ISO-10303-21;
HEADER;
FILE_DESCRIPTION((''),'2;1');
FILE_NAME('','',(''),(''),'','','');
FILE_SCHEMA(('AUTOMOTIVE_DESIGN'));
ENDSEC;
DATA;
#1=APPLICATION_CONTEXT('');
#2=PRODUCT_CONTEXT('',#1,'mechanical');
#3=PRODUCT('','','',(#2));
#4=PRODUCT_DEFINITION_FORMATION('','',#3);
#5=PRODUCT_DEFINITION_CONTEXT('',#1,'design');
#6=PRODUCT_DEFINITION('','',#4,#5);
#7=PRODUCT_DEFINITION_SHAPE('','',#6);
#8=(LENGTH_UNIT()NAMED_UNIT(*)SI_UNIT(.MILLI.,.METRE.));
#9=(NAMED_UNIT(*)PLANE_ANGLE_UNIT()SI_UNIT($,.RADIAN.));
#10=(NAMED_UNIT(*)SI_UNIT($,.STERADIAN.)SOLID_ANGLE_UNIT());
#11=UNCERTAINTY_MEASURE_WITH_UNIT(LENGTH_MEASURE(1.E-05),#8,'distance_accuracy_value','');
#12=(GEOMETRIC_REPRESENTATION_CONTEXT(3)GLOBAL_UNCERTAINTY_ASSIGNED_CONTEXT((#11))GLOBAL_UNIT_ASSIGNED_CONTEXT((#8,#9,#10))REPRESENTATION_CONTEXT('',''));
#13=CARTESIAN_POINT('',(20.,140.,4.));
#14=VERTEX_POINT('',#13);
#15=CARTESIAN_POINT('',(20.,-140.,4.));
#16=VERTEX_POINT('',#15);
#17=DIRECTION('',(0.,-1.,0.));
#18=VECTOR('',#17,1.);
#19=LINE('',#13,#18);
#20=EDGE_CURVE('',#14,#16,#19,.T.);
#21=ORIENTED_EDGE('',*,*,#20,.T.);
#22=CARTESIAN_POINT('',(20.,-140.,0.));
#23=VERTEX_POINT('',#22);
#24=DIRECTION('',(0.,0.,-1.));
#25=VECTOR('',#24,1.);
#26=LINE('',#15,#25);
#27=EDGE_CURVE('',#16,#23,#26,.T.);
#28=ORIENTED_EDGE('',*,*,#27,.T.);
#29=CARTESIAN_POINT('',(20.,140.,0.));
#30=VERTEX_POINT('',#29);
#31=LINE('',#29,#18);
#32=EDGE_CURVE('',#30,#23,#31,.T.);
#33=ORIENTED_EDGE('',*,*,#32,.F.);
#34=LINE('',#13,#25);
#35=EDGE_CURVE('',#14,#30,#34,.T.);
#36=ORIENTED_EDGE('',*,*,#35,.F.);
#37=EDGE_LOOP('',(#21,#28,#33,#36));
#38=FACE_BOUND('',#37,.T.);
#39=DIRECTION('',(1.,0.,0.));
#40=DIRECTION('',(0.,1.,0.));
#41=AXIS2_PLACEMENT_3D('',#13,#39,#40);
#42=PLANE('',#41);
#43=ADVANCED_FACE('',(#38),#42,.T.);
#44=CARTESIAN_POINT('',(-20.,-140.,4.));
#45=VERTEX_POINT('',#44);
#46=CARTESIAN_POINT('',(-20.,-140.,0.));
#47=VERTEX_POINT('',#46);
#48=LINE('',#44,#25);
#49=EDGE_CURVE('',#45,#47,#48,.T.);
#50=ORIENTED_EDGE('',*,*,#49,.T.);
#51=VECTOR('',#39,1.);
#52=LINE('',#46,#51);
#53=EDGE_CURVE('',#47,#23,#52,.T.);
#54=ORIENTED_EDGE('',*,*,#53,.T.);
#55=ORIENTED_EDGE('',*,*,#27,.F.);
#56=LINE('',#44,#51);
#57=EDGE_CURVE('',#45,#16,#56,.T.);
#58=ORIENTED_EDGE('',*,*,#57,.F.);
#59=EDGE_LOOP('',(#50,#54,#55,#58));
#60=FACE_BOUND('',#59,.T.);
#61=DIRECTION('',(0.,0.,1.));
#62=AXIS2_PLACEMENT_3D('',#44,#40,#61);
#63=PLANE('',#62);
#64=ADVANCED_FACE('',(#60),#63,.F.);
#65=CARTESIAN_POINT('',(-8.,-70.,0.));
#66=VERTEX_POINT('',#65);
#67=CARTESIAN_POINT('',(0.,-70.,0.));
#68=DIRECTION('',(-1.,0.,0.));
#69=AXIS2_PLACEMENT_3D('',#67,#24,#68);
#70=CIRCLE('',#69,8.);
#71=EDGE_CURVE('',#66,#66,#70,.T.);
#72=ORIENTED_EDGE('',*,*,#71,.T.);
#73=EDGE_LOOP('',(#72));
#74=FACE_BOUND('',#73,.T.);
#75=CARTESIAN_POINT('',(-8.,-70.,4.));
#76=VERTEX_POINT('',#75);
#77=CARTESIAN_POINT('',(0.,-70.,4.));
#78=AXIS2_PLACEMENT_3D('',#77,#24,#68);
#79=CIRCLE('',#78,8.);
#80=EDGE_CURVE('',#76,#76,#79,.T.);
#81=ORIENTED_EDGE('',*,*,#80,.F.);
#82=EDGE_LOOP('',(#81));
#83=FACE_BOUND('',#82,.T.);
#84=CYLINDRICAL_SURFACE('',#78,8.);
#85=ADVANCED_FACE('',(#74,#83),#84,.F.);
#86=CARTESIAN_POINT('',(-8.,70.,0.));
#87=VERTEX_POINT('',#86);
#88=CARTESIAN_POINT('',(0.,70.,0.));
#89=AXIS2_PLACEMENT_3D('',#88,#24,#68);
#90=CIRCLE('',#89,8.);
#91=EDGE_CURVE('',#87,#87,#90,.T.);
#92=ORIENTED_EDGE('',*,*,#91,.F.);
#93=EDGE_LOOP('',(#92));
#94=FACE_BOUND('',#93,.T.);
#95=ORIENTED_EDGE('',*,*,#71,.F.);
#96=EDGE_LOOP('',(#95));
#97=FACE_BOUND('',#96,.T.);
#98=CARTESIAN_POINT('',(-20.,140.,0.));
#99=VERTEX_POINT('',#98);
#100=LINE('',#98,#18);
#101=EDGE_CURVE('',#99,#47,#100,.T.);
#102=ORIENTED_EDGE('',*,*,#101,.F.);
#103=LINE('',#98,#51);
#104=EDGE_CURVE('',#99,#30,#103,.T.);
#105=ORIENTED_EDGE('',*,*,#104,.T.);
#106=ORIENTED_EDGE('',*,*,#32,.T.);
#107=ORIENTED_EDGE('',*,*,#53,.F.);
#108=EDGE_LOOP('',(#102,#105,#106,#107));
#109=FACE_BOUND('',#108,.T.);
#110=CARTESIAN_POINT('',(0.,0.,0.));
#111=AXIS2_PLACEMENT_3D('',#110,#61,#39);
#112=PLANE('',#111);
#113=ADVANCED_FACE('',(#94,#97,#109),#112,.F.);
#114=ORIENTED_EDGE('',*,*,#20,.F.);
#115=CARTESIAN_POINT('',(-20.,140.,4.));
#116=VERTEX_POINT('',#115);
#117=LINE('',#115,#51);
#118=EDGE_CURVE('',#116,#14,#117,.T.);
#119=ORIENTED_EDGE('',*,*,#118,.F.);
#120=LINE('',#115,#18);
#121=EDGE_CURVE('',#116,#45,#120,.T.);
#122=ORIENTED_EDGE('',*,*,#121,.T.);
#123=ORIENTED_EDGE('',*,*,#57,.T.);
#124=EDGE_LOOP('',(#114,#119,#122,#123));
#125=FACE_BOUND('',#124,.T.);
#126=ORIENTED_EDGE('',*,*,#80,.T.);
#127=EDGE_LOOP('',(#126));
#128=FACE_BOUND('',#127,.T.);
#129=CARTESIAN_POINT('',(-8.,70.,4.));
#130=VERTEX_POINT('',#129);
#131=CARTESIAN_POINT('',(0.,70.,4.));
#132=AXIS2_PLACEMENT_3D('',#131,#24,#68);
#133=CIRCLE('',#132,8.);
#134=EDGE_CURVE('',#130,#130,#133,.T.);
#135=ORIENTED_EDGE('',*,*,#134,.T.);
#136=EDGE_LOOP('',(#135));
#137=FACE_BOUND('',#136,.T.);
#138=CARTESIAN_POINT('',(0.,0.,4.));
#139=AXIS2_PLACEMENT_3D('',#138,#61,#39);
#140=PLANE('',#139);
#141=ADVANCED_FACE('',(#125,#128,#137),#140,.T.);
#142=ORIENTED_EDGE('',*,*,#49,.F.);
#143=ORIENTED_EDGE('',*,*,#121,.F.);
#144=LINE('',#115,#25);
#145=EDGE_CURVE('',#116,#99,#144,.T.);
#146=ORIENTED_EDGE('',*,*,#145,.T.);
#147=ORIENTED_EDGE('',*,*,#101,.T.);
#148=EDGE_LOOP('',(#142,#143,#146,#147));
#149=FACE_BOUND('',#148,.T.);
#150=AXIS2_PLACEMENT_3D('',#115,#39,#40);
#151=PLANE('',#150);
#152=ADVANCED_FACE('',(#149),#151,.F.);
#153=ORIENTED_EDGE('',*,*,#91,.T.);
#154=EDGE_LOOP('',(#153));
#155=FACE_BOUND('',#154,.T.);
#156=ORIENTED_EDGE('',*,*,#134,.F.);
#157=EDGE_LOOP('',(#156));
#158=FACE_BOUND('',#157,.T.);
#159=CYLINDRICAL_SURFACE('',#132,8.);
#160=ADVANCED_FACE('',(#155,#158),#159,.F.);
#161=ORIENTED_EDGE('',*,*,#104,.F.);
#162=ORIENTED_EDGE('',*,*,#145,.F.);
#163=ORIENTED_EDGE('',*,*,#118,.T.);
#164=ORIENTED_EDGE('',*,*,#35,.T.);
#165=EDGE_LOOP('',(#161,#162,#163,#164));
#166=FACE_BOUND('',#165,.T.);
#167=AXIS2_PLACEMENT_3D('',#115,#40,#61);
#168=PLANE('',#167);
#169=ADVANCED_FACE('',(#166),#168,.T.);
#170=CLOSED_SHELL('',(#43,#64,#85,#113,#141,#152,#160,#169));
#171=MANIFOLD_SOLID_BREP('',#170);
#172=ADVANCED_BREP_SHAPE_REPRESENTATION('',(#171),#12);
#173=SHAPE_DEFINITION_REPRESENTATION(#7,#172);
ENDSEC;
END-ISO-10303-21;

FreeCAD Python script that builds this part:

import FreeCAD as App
import Part
import Sketcher

V = App.Vector

doc = App.newDocument("Part")
params = doc.addObject("Spreadsheet::Sheet", "Params")
for row, (alias, value) in enumerate([
    ("sketch1_width", "40 mm"),
    ("sketch1_height", "280 mm"),
    ("pad1_length", "4 mm"),
    ("sketch2_diameter", "16 mm"),
    ("pad2_length", "4 mm"),
    ("sketch3_diameter", "16 mm"),
    ("pocket1_length", "4 mm"),
], start=1):
    params.set(f"A{row}", alias)
    params.set(f"B{row}", "=" + value)
    params.setAlias(f"B{row}", alias)

body = doc.addObject("PartDesign::Body", "Body")

# Sketch on XY plane
sketch1 = doc.addObject("Sketcher::SketchObject", "Sketch")
body.addObject(sketch1)
sketch1.AttachmentSupport = (doc.XY_Plane, [""])
sketch1.MapMode = "FlatFace"
sketch1.addGeometry([
    Part.LineSegment(V(-20, 140, 0), V(-20, -140, 0)),
    Part.LineSegment(V(-20, -140, 0), V(20, -140, 0)),
    Part.LineSegment(V(20, -140, 0), V(20, 140, 0)),
    Part.LineSegment(V(20, 140, 0), V(-20, 140, 0)),
], False)
sketch1.addConstraint([
    Sketcher.Constraint("Coincident", 0, 2, 1, 1),
    Sketcher.Constraint("Coincident", 1, 2, 2, 1),
    Sketcher.Constraint("Coincident", 2, 2, 3, 1),
    Sketcher.Constraint("Coincident", 3, 2, 0, 1),
    Sketcher.Constraint("Vertical", 0),
    Sketcher.Constraint("Horizontal", 1),
    Sketcher.Constraint("Vertical", 2),
    Sketcher.Constraint("Horizontal", 3),
    Sketcher.Constraint("Symmetric", 0, 2, 2, 2, -1, 1),
    Sketcher.Constraint("DistanceX", 1, 1, 1, 2, 40.0),
    Sketcher.Constraint("DistanceY", 0, 2, 0, 1, 280.0),
])
sketch1.setExpression("Constraints[9]", "Params.sketch1_width")
sketch1.setExpression("Constraints[10]", "Params.sketch1_height")
pad1 = doc.addObject("PartDesign::Pad", "Pad")
body.addObject(pad1)
pad1.Profile = sketch1
pad1.setExpression("Length", "Params.pad1_length")

# Sketch on XY plane
sketch2 = doc.addObject("Sketcher::SketchObject", "Sketch001")
body.addObject(sketch2)
sketch2.AttachmentSupport = (doc.XY_Plane, [""])
sketch2.MapMode = "FlatFace"
sketch2.addGeometry([
    Part.Circle(V(0, 70, 0), V(0, 0, 1), 8),
    Part.Circle(V(0, -70, 0), V(0, 0, 1), 8),
], False)
sketch2.addConstraint([
    Sketcher.Constraint("Equal", 0, 1),
    Sketcher.Constraint("Symmetric", 0, 3, 1, 3, -1, 1),
    Sketcher.Constraint("PointOnObject", 0, 3, -2),
    Sketcher.Constraint("Diameter", 0, 16.0),
    Sketcher.Constraint("DistanceY", -1, 1, 0, 3, 70.0),
])
sketch2.setExpression("Constraints[3]", "Params.sketch2_diameter")
pad2 = doc.addObject("PartDesign::Pad", "Pad001")
body.addObject(pad2)
pad2.Profile = sketch2
pad2.setExpression("Length", "Params.pad2_length")

# Sketch on XY plane
sketch3 = doc.addObject("Sketcher::SketchObject", "Sketch002")
body.addObject(sketch3)
sketch3.AttachmentSupport = (doc.XY_Plane, [""])
sketch3.MapMode = "FlatFace"
sketch3.addGeometry([
    Part.Circle(V(0, 70, 0), V(0, 0, 1), 8),
    Part.Circle(V(0, -70, 0), V(0, 0, 1), 8),
], False)
sketch3.addConstraint([
    Sketcher.Constraint("Equal", 0, 1),
    Sketcher.Constraint("Symmetric", 0, 3, 1, 3, -1, 1),
    Sketcher.Constraint("PointOnObject", 0, 3, -2),
    Sketcher.Constraint("Diameter", 0, 16.0),
    Sketcher.Constraint("DistanceY", -1, 1, 0, 3, 70.0),
])
sketch3.setExpression("Constraints[3]", "Params.sketch3_diameter")
pocket1 = doc.addObject("PartDesign::Pocket", "Pocket")
body.addObject(pocket1)
pocket1.Profile = sketch3
pocket1.setExpression("Length", "Params.pocket1_length")
pocket1.Reversed = True

doc.recompute()
